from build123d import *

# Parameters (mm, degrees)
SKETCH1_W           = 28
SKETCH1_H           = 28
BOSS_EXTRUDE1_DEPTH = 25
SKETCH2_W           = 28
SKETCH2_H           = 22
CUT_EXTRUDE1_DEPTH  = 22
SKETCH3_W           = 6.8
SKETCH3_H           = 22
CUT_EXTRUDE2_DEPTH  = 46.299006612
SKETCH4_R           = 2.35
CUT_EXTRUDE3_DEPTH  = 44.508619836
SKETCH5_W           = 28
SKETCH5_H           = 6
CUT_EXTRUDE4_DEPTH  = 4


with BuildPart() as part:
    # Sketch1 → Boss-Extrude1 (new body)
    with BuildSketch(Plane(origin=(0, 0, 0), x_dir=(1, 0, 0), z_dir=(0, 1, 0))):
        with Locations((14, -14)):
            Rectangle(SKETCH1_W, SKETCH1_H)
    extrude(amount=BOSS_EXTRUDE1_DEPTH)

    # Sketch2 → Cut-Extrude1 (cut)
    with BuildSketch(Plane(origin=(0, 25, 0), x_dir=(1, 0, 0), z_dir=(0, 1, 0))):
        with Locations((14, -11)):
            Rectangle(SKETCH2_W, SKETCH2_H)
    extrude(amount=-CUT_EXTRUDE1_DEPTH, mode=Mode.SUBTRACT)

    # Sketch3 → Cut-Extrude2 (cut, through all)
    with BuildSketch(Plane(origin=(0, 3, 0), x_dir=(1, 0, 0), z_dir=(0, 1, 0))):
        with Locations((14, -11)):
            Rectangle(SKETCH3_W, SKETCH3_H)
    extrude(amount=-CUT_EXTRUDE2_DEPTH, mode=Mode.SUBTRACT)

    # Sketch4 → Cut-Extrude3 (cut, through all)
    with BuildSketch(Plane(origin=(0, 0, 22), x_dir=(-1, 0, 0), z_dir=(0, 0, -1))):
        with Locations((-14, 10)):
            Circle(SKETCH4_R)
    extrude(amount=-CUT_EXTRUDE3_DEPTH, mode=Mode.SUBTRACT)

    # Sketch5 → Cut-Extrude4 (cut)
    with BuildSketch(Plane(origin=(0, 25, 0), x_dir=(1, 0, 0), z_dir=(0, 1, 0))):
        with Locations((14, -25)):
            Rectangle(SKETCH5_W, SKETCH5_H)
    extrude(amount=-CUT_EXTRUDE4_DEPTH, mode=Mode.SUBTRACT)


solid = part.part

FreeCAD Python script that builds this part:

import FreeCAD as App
import Part
import Sketcher

V = App.Vector


def add_polygon(sketch, points):
    """Adds a closed chain of lines whose ends are joined by coincident constraints."""
    first, n = sketch.GeometryCount, len(points)
    for a, b in zip(points, points[1:] + points[:1]):
        sketch.addGeometry(Part.LineSegment(App.Vector(*a, 0), App.Vector(*b, 0)), False)
    for i in range(n):
        sketch.addConstraint(Sketcher.Constraint("Coincident", first + i, 2, first + (i + 1) % n, 1))

doc = App.newDocument("Part")
body = doc.addObject("PartDesign::Body", "Body")

# Sketch on XZ plane
sketch1 = body.newObject("Sketcher::SketchObject", "Sketch")
sketch1.AttachmentSupport = (doc.getObject("XZ_Plane"), [""])
sketch1.MapMode = "FlatFace"
add_polygon(sketch1, [(0, 0), (0, 28), (28, 28), (28, 0)])  # lines 0-3
sketch1.addConstraint([
    Sketcher.Constraint("Vertical", 0),
    Sketcher.Constraint("Horizontal", 1),
    Sketcher.Constraint("Vertical", 2),
    Sketcher.Constraint("Horizontal", 3),
    Sketcher.Constraint("Coincident", 3, 2, -1, 1),
    Sketcher.Constraint("Equal", 3, 0),
    Sketcher.Constraint("DistanceX", 1, 1, 1, 2, 28.0),
])
pad1 = body.newObject("PartDesign::Pad", "Pad")
pad1.Profile = sketch1
pad1.Length = 25
pad1.Reversed = True

# Sketch on XZ plane
sketch2 = body.newObject("Sketcher::SketchObject", "Sketch001")
sketch2.AttachmentSupport = (doc.getObject("XZ_Plane"), [""])
sketch2.MapMode = "FlatFace"
sketch2.AttachmentOffset = App.Placement(V(0, 0, -25), App.Rotation())
add_polygon(sketch2, [(0, 0), (0, 22), (28, 22), (28, 0)])  # lines 0-3
sketch2.addConstraint([
    Sketcher.Constraint("Vertical", 0),
    Sketcher.Constraint("Horizontal", 1),
    Sketcher.Constraint("Vertical", 2),
    Sketcher.Constraint("Horizontal", 3),
    Sketcher.Constraint("Coincident", 3, 2, -1, 1),
    Sketcher.Constraint("DistanceX", 1, 1, 1, 2, 28.0),
    Sketcher.Constraint("DistanceY", 0, 1, 0, 2, 22.0),
])
pocket1 = body.newObject("PartDesign::Pocket", "Pocket")
pocket1.Profile = sketch2
pocket1.Length = 22
pocket1.Reversed = True

# Sketch on XZ plane
sketch3 = body.newObject("Sketcher::SketchObject", "Sketch002")
sketch3.AttachmentSupport = (doc.getObject("XZ_Plane"), [""])
sketch3.MapMode = "FlatFace"
sketch3.AttachmentOffset = App.Placement(V(0, 0, -3), App.Rotation())
add_polygon(sketch3, [(11, 0), (11, 22), (17, 22), (17, 0)])  # lines 0-3
sketch3.addConstraint([
    Sketcher.Constraint("Vertical", 0),
    Sketcher.Constraint("Horizontal", 1),
    Sketcher.Constraint("Vertical", 2),
    Sketcher.Constraint("Horizontal", 3),
    Sketcher.Constraint("PointOnObject", 2, 2, -1),
    Sketcher.Constraint("DistanceY", 0, 1, 0, 2, 22.0),
    Sketcher.Constraint("DistanceX", 1, 1, 1, 2, 6.8),
    Sketcher.Constraint("DistanceX", -1, 1, 0, 2, 10.6),
])
pocket2 = body.newObject("PartDesign::Pocket", "Pocket001")
pocket2.Profile = sketch3
pocket2.Type = "ThroughAll"
pocket2.Reversed = True

# Sketch on XY plane
sketch4 = body.newObject("Sketcher::SketchObject", "Sketch003")
sketch4.AttachmentSupport = (doc.getObject("XY_Plane"), [""])
sketch4.MapMode = "FlatFace"
sketch4.AttachmentOffset = App.Placement(V(0, 0, 22), App.Rotation())
sketch4.addGeometry(Part.Circle(V(14, 10, 0), V(0, 0, 1), 2.4), False)
sketch4.addConstraint([
    Sketcher.Constraint("Diameter", 0, 4.7),
    Sketcher.Constraint("DistanceX", -1, 1, 0, 3, 14.0),
    Sketcher.Constraint("DistanceY", -1, 1, 0, 3, 10.0),
])
pocket3 = body.newObject("PartDesign::Pocket", "Pocket002")
pocket3.Profile = sketch4
pocket3.Type = "ThroughAll"
pocket3.Reversed = True

# Sketch on XZ plane
sketch5 = body.newObject("Sketcher::SketchObject", "Sketch004")
sketch5.AttachmentSupport = (doc.getObject("XZ_Plane"), [""])
sketch5.MapMode = "FlatFace"
sketch5.AttachmentOffset = App.Placement(V(0, 0, -25), App.Rotation())
add_polygon(sketch5, [(0, 22), (0, 28), (28, 28), (28, 22)])  # lines 0-3
sketch5.addConstraint([
    Sketcher.Constraint("Vertical", 0),
    Sketcher.Constraint("Horizontal", 1),
    Sketcher.Constraint("Vertical", 2),
    Sketcher.Constraint("Horizontal", 3),
    Sketcher.Constraint("PointOnObject", 0, 2, -2),
    Sketcher.Constraint("DistanceX", 1, 1, 1, 2, 28.0),
    Sketcher.Constraint("DistanceY", 0, 1, 0, 2, 6.0),
    Sketcher.Constraint("DistanceY", -1, 1, 0, 2, 28.0),
])
pocket4 = body.newObject("PartDesign::Pocket", "Pocket003")
pocket4.Profile = sketch5
pocket4.Length = 4
pocket4.Reversed = True

doc.recompute()
